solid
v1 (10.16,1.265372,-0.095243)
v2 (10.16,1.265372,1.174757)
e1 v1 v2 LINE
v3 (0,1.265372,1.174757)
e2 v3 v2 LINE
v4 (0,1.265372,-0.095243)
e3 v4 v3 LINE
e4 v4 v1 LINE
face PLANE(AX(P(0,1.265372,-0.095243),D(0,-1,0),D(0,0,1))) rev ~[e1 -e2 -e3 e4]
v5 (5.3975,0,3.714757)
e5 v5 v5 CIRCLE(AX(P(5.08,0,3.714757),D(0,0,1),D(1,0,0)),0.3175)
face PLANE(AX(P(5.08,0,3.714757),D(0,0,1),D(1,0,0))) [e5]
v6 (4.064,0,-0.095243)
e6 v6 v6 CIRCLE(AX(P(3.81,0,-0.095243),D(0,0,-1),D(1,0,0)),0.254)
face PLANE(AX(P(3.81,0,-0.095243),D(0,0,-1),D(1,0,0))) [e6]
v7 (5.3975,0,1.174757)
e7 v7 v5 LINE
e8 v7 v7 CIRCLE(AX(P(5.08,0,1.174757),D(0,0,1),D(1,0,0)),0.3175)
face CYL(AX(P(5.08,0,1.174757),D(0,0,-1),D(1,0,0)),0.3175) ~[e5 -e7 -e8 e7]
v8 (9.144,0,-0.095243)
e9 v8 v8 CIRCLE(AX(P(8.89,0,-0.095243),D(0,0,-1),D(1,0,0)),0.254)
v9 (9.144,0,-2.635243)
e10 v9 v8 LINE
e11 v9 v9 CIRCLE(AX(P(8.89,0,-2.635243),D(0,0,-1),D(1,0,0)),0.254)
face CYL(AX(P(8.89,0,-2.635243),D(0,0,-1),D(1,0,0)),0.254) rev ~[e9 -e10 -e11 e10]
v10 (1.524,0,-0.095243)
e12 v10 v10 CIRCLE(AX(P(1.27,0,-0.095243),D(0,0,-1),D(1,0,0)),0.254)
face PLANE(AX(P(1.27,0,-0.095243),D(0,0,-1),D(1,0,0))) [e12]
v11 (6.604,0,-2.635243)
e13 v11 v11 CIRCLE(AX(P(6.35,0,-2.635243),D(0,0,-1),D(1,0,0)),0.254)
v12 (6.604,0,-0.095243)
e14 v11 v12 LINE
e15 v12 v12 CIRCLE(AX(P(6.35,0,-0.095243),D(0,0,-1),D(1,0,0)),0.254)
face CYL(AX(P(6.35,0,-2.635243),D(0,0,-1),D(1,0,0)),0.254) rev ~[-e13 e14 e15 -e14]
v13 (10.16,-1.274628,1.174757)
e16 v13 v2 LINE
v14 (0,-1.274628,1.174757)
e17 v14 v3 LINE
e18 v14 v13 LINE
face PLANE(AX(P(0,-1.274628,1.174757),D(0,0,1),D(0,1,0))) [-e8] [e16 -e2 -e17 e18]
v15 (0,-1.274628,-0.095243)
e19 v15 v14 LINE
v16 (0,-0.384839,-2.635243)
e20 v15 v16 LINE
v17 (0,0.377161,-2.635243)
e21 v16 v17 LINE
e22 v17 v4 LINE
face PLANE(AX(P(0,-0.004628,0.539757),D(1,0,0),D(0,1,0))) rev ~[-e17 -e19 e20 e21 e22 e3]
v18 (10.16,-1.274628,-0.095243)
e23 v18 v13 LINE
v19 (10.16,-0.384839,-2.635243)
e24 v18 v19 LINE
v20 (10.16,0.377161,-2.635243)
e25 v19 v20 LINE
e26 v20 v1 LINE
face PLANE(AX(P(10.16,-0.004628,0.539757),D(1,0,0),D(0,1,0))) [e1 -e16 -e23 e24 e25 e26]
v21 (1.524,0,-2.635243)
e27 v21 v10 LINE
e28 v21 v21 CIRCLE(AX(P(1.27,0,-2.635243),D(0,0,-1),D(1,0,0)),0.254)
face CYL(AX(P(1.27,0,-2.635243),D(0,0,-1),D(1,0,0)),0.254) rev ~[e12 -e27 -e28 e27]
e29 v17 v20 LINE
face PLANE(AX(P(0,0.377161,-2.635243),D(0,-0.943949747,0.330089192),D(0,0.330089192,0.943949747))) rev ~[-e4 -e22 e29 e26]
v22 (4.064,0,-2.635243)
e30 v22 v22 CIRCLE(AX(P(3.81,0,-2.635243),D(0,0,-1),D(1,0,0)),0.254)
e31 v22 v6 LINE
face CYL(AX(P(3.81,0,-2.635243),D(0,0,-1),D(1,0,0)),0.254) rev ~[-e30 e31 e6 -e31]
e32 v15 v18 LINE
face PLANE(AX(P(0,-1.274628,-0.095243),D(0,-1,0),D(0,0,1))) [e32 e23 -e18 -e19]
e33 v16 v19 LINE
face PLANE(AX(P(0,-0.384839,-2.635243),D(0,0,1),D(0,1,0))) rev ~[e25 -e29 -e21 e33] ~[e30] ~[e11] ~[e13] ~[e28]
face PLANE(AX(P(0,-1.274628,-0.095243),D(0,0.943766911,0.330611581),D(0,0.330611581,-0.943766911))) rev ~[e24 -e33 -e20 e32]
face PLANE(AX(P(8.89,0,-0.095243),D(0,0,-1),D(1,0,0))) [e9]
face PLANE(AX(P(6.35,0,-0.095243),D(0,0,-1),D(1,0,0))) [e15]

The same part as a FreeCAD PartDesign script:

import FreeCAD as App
import Part
import Sketcher

V = App.Vector
Q = App.Units.Quantity

doc = App.newDocument("Part")
params = doc.addObject("Spreadsheet::Sheet", "Params")
for row, (alias, value) in enumerate([
    ("sketch1_width", "0.1 in"),
    ("sketch1_width2", "0.03 in"),
    ("sketch1_height", "0.05 in"),
    ("pad1_length", "0.4 in"),
    ("sketch2_diameter", "0.02 in"),
    ("pocket1_length", "0.1 in"),
    ("sketch3_diameter", "0.025 in"),
    ("pad2_length", "0.1 in"),
    ("sketch4_diameter", "0.02 in"),
    ("pocket2_length", "0.1 in"),
    ("sketch5_diameter", "0.02 in"),
    ("pocket3_length", "0.1 in"),
    ("sketch6_diameter", "0.02 in"),
    ("pocket4_length", "0.1 in"),
], start=1):
    params.set(f"A{row}", alias)
    params.set(f"B{row}", "=" + value)
    params.setAlias(f"B{row}", alias)

body = doc.addObject("PartDesign::Body", "Body")

# Sketch on YZ plane
sketch1 = doc.addObject("Sketcher::SketchObject", "Sketch")
body.addObject(sketch1)
sketch1.AttachmentSupport = (doc.YZ_Plane, [""])
sketch1.MapMode = "FlatFace"
sketch1.addGeometry([
    Part.LineSegment(V(-1.3, 1.2, 0), V(-1.3, -0.1, 0)),  # 0
    Part.LineSegment(V(-1.3, -0.1, 0), V(-0.4, -2.6, 0)),  # 1
    Part.LineSegment(V(-0.4, -2.6, 0), V(0.4, -2.6, 0)),  # 2
    Part.LineSegment(V(0.4, -2.6, 0), V(1.3, -0.1, 0)),  # 3
    Part.LineSegment(V(1.3, -0.1, 0), V(1.3, 1.2, 0)),  # 4
    Part.LineSegment(V(1.3, 1.2, 0), V(-1.3, 1.2, 0)),  # 5
], False)
sketch1.addConstraint([
    Sketcher.Constraint("Coincident", 0, 2, 1, 1),
    Sketcher.Constraint("Coincident", 1, 2, 2, 1),
    Sketcher.Constraint("Coincident", 2, 2, 3, 1),
    Sketcher.Constraint("Coincident", 3, 2, 4, 1),
    Sketcher.Constraint("Coincident", 4, 2, 5, 1),
    Sketcher.Constraint("Coincident", 5, 2, 0, 1),
    Sketcher.Constraint("Vertical", 0),
    Sketcher.Constraint("Horizontal", 2),
    Sketcher.Constraint("Vertical", 4),
    Sketcher.Constraint("Horizontal", 5),
    Sketcher.Constraint("Horizontal", 0, 2, 3, 2),
    Sketcher.Constraint("DistanceX", 5, 2, 5, 1, Q("0.1 in")),
    Sketcher.Constraint("DistanceX", 2, 1, 2, 2, Q("0.03 in")),
    Sketcher.Constraint("DistanceY", 0, 2, 0, 1, Q("0.05 in")),
    Sketcher.Constraint("DistanceY", 1, 2, 0, 2, Q("0.1 in")),
    Sketcher.Constraint("Distance", 3, Q("2.690821 mm")),
    Sketcher.Constraint("DistanceX", 0, 2, -1, 1, Q("1.274628 mm")),
    Sketcher.Constraint("DistanceY", 0, 2, -1, 1, Q("0.095243 mm")),
])
sketch1.setExpression("Constraints[11]", "Params.sketch1_width")
sketch1.setExpression("Constraints[12]", "Params.sketch1_width2")
sketch1.setExpression("Constraints[13]", "Params.sketch1_height")
pad1 = doc.addObject("PartDesign::Pad", "Pad")
body.addObject(pad1)
pad1.Profile = sketch1
pad1.setExpression("Length", "Params.pad1_length")

# Sketch on XY plane
sketch2 = doc.addObject("Sketcher::SketchObject", "Sketch001")
body.addObject(sketch2)
sketch2.AttachmentSupport = (doc.XY_Plane, [""])
sketch2.MapMode = "FlatFace"
sketch2.AttachmentOffset = App.Placement(V(0, 0, -2.635243), App.Rotation())
sketch2.addGeometry(Part.Circle(V(1.27, 0, 0), V(0, 0, 1), 0.25), False)
sketch2.addConstraint([
    Sketcher.Constraint("PointOnObject", 0, 3, -1),
    Sketcher.Constraint("Diameter", 0, Q("0.02 in")),
    Sketcher.Constraint("DistanceX", -1, 1, 0, 3, Q("0.05 in")),
])
sketch2.setExpression("Constraints[1]", "Params.sketch2_diameter")
pocket1 = doc.addObject("PartDesign::Pocket", "Pocket")
body.addObject(pocket1)
pocket1.Profile = sketch2
pocket1.setExpression("Length", "Params.pocket1_length")
pocket1.Reversed = True

# Sketch on XY plane
sketch3 = doc.addObject("Sketcher::SketchObject", "Sketch002")
body.addObject(sketch3)
sketch3.AttachmentSupport = (doc.XY_Plane, [""])
sketch3.MapMode = "FlatFace"
sketch3.AttachmentOffset = App.Placement(V(0, 0, 1.174757), App.Rotation())
sketch3.addGeometry(Part.Circle(V(5.08, 0, 0), V(0, 0, 1), 0.32), False)
sketch3.addConstraint([
    Sketcher.Constraint("PointOnObject", 0, 3, -1),
    Sketcher.Constraint("Diameter", 0, Q("0.025 in")),
    Sketcher.Constraint("DistanceX", -1, 1, 0, 3, Q("0.2 in")),
])
sketch3.setExpression("Constraints[1]", "Params.sketch3_diameter")
pad2 = doc.addObject("PartDesign::Pad", "Pad001")
body.addObject(pad2)
pad2.Profile = sketch3
pad2.setExpression("Length", "Params.pad2_length")

# Sketch on XY plane
sketch4 = doc.addObject("Sketcher::SketchObject", "Sketch003")
body.addObject(sketch4)
sketch4.AttachmentSupport = (doc.XY_Plane, [""])
sketch4.MapMode = "FlatFace"
sketch4.AttachmentOffset = App.Placement(V(0, 0, -2.635243), App.Rotation())
sketch4.addGeometry(Part.Circle(V(8.89, 0, 0), V(0, 0, 1), 0.25), False)
sketch4.addConstraint([
    Sketcher.Constraint("PointOnObject", 0, 3, -1),
    Sketcher.Constraint("Diameter", 0, Q("0.02 in")),
    Sketcher.Constraint("DistanceX", -1, 1, 0, 3, Q("0.35 in")),
])
sketch4.setExpression("Constraints[1]", "Params.sketch4_diameter")
pocket2 = doc.addObject("PartDesign::Pocket", "Pocket001")
body.addObject(pocket2)
pocket2.Profile = sketch4
pocket2.setExpression("Length", "Params.pocket2_length")
pocket2.Reversed = True

# Sketch on XY plane
sketch5 = doc.addObject("Sketcher::SketchObject", "Sketch004")
body.addObject(sketch5)
sketch5.AttachmentSupport = (doc.XY_Plane, [""])
sketch5.MapMode = "FlatFace"
sketch5.AttachmentOffset = App.Placement(V(0, 0, -2.635243), App.Rotation())
sketch5.addGeometry(Part.Circle(V(3.81, 0, 0), V(0, 0, 1), 0.25), False)
sketch5.addConstraint([
    Sketcher.Constraint("PointOnObject", 0, 3, -1),
    Sketcher.Constraint("Diameter", 0, Q("0.02 in")),
    Sketcher.Constraint("DistanceX", -1, 1, 0, 3, Q("0.15 in")),
])
sketch5.setExpression("Constraints[1]", "Params.sketch5_diameter")
pocket3 = doc.addObject("PartDesign::Pocket", "Pocket002")
body.addObject(pocket3)
pocket3.Profile = sketch5
pocket3.setExpression("Length", "Params.pocket3_length")
pocket3.Reversed = True

# Sketch on XY plane
sketch6 = doc.addObject("Sketcher::SketchObject", "Sketch005")
body.addObject(sketch6)
sketch6.AttachmentSupport = (doc.XY_Plane, [""])
sketch6.MapMode = "FlatFace"
sketch6.AttachmentOffset = App.Placement(V(0, 0, -2.635243), App.Rotation())
sketch6.addGeometry(Part.Circle(V(6.35, 0, 0), V(0, 0, 1), 0.25), False)
sketch6.addConstraint([
    Sketcher.Constraint("PointOnObject", 0, 3, -1),
    Sketcher.Constraint("Diameter", 0, Q("0.02 in")),
    Sketcher.Constraint("DistanceX", -1, 1, 0, 3, Q("0.25 in")),
])
sketch6.setExpression("Constraints[1]", "Params.sketch6_diameter")
pocket4 = doc.addObject("PartDesign::Pocket", "Pocket003")
body.addObject(pocket4)
pocket4.Profile = sketch6
pocket4.setExpression("Length", "Params.pocket4_length")
pocket4.Reversed = True

doc.recompute()
